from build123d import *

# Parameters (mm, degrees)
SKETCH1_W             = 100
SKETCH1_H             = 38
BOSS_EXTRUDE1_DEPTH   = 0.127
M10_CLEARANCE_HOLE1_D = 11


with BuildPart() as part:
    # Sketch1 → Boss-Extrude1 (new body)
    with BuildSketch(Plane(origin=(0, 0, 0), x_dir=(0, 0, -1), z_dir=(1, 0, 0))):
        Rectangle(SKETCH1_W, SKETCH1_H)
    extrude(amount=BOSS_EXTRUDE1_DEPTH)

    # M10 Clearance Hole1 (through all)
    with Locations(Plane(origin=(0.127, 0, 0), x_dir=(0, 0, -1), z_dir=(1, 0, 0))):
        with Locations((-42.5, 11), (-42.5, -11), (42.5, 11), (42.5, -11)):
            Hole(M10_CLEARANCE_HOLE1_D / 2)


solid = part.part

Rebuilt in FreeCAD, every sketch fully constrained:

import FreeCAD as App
import Part
import Sketcher
from FreeCAD import Vector


def add_polygon(sketch, points):
    """Adds a closed chain of lines whose ends are joined by coincident constraints."""
    first, n = sketch.GeometryCount, len(points)
    for a, b in zip(points, points[1:] + points[:1]):
        sketch.addGeometry(Part.LineSegment(App.Vector(*a, 0), App.Vector(*b, 0)), False)
    for i in range(n):
        sketch.addConstraint(Sketcher.Constraint("Coincident", first + i, 2, first + (i + 1) % n, 1))

doc = App.newDocument("Part")
body = doc.addObject("PartDesign::Body", "Body")

# Sketch on YZ plane
sketch1 = body.newObject("Sketcher::SketchObject", "Sketch")
sketch1.AttachmentSupport = (doc.getObject("YZ_Plane"), [""])
sketch1.MapMode = "FlatFace"
add_polygon(sketch1, [(19, 50), (-19, 50), (-19, -50), (19, -50)])  # lines 0-3
sketch1.addConstraint(Sketcher.Constraint("Horizontal", 0))
sketch1.addConstraint(Sketcher.Constraint("Vertical", 1))
sketch1.addConstraint(Sketcher.Constraint("Horizontal", 2))
sketch1.addConstraint(Sketcher.Constraint("Vertical", 3))
sketch1.addConstraint(Sketcher.Constraint("Symmetric", 0, 2, 2, 2, -1, 1))
sketch1.addConstraint(Sketcher.Constraint("DistanceX", 0, 2, 0, 1, 38.0))
sketch1.addConstraint(Sketcher.Constraint("DistanceY", 1, 2, 1, 1, 100.0))
pad1 = body.newObject("PartDesign::Pad", "Pad")
pad1.Profile = sketch1
pad1.Length = 0.127

# Sketch on YZ plane
sketch2 = body.newObject("Sketcher::SketchObject", "Sketch001")
sketch2.AttachmentSupport = (doc.getObject("YZ_Plane"), [""])
sketch2.MapMode = "FlatFace"
sketch2.AttachmentOffset = App.Placement(Vector(0, 0, 0.127), App.Rotation())
sketch2.addGeometry(Part.Circle(Vector(11, 42, 0), Vector(0, 0, 1), 6), False)
sketch2.addGeometry(Part.Circle(Vector(-11, 42, 0), Vector(0, 0, 1), 6), False)
sketch2.addGeometry(Part.Circle(Vector(11, -42, 0), Vector(0, 0, 1), 6), False)
sketch2.addGeometry(Part.Circle(Vector(-11, -42, 0), Vector(0, 0, 1), 6), False)
sketch2.addConstraint(Sketcher.Constraint("Equal", 0, 1))
sketch2.addConstraint(Sketcher.Constraint("Equal", 1, 2))
sketch2.addConstraint(Sketcher.Constraint("Equal", 2, 3))
sketch2.addConstraint(Sketcher.Constraint("Symmetric", 1, 3, 2, 3, -1, 1))
sketch2.addConstraint(Sketcher.Constraint("Symmetric", 0, 3, 3, 3, -1, 1))
sketch2.addConstraint(Sketcher.Constraint("Symmetric", 0, 3, 1, 3, -2))
sketch2.addConstraint(Sketcher.Constraint("Diameter", 0, 11.0))
sketch2.addConstraint(Sketcher.Constraint("DistanceX", -1, 1, 0, 3, 11.0))
sketch2.addConstraint(Sketcher.Constraint("DistanceY", 2, 3, 0, 3, 85.0))
doc.recompute()
hole = body.newObject("PartDesign::Hole", "Hole")
hole.Profile = sketch2
hole.ThreadType = "None"
hole.Diameter = 11
hole.DepthType = "ThroughAll"

doc.recompute()
